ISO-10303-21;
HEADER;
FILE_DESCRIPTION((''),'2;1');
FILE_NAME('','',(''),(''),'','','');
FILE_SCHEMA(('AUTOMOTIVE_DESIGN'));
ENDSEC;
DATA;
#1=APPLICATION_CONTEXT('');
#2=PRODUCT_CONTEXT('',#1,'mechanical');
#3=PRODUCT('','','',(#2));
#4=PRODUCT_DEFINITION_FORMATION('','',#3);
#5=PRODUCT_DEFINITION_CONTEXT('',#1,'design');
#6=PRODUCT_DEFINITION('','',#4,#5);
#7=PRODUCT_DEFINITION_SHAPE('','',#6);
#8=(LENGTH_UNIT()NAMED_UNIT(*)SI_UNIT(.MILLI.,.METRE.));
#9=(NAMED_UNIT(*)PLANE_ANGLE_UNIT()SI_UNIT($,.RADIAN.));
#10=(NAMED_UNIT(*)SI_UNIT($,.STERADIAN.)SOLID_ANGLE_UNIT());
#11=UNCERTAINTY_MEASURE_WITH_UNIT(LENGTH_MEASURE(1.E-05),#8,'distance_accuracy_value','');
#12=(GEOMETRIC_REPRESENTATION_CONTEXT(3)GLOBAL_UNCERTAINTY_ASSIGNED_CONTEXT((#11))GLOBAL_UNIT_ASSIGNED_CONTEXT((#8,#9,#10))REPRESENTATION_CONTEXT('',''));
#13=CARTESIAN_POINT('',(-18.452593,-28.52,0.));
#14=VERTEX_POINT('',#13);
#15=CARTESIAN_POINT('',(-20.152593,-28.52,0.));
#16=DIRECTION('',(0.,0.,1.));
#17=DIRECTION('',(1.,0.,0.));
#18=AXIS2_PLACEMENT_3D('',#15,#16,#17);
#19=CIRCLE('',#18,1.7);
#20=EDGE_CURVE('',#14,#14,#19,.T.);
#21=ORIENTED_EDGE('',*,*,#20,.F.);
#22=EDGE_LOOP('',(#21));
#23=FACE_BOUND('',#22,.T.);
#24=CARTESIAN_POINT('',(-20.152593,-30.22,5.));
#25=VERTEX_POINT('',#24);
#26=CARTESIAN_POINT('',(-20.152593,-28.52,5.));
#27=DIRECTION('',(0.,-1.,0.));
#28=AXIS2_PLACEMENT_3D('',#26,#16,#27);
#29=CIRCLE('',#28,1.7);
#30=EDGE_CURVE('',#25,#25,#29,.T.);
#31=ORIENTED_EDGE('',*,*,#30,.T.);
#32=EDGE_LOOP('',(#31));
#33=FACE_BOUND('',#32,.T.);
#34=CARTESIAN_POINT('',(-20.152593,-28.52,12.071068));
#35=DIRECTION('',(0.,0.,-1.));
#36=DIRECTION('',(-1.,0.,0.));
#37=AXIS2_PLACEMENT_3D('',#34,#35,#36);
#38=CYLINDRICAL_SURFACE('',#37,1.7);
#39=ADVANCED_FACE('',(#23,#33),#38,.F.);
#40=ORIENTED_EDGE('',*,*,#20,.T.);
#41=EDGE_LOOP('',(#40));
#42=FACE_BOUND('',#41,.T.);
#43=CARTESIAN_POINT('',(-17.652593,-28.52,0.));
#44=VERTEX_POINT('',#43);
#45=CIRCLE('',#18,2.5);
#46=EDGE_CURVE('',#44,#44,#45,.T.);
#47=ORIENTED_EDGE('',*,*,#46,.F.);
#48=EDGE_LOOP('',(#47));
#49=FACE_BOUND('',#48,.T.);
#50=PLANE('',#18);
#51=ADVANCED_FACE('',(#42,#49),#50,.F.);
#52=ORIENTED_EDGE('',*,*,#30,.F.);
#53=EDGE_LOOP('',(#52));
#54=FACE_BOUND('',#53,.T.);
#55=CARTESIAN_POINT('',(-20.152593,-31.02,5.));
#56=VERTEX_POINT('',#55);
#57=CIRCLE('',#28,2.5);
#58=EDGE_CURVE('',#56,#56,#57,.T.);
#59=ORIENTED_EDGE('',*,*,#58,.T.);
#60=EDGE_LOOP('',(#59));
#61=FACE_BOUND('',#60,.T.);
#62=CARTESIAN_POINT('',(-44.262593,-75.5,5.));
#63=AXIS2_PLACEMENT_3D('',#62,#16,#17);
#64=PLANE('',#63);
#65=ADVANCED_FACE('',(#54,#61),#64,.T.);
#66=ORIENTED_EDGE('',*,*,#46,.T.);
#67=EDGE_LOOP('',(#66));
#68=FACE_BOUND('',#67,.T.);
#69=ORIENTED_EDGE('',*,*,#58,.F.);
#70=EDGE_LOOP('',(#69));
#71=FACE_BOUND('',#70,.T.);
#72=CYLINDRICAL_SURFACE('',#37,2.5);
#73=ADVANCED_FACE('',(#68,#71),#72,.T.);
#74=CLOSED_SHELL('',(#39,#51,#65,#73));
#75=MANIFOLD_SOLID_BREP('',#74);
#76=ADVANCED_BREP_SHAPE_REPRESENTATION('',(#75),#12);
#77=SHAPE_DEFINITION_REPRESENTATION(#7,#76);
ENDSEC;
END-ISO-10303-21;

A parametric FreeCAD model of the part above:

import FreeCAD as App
import Part
import Sketcher

doc = App.newDocument("Part")
body = doc.addObject("PartDesign::Body", "Body")

# Sketch on XY plane
sketch1 = body.newObject("Sketcher::SketchObject", "Sketch")
sketch1.AttachmentSupport = (doc.getObject("XY_Plane"), [""])
sketch1.MapMode = "FlatFace"
sketch1.addGeometry(Part.Circle(App.Vector(-20.2, -28.5, 0), App.Vector(0, 0, 1), 2.5), False)
sketch1.addGeometry(Part.Circle(App.Vector(-20.2, -28.5, 0), App.Vector(0, 0, 1), 1.7), False)
sketch1.addConstraint(Sketcher.Constraint("Coincident", 1, 3, 0, 3))
sketch1.addConstraint(Sketcher.Constraint("Diameter", 0, 5.0))
sketch1.addConstraint(Sketcher.Constraint("Diameter", 1, 3.4))
sketch1.addConstraint(Sketcher.Constraint("DistanceY", 0, 3, -1, 1, 28.52))
sketch1.addConstraint(Sketcher.Constraint("DistanceX", 0, 3, -1, 1, 20.152593))
pad1 = body.newObject("PartDesign::Pad", "Pad")
pad1.Profile = sketch1
pad1.Length = 5

doc.recompute()
